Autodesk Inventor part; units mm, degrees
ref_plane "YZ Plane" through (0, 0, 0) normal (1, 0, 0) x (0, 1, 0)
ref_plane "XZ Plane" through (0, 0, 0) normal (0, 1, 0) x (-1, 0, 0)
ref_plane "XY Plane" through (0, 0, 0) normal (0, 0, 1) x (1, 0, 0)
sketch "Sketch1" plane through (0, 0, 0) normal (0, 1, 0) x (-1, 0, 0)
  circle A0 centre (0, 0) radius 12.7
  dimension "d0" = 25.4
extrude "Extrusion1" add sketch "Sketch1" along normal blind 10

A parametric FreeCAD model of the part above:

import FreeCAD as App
import Part
import Sketcher

V = App.Vector
Q = App.Units.Quantity

doc = App.newDocument("Part")
params = doc.addObject("Spreadsheet::Sheet", "Params")
for row, (alias, value) in enumerate([
    ("sketch1_diameter", "1 in"),
    ("pad1_length", "0.3937008 in"),
], start=1):
    params.set(f"A{row}", alias)
    params.set(f"B{row}", "=" + value)
    params.setAlias(f"B{row}", alias)

body = doc.addObject("PartDesign::Body", "Body")

# Sketch on XZ plane
sketch1 = body.newObject("Sketcher::SketchObject", "Sketch")
sketch1.AttachmentSupport = (doc.getObject("XZ_Plane"), [""])
sketch1.MapMode = "FlatFace"
sketch1.addGeometry(Part.Circle(V(0, 0, 0), V(0, 0, 1), 12.7), False)
sketch1.addConstraint([
    Sketcher.Constraint("Coincident", 0, 3, -1, 1),
    Sketcher.Constraint("Diameter", 0, Q("1 in")),
])
sketch1.setExpression("Constraints[1]", "Params.sketch1_diameter")
pad1 = body.newObject("PartDesign::Pad", "Pad")
pad1.Profile = sketch1
pad1.setExpression("Length", "Params.pad1_length")
pad1.Reversed = True

doc.recompute()
